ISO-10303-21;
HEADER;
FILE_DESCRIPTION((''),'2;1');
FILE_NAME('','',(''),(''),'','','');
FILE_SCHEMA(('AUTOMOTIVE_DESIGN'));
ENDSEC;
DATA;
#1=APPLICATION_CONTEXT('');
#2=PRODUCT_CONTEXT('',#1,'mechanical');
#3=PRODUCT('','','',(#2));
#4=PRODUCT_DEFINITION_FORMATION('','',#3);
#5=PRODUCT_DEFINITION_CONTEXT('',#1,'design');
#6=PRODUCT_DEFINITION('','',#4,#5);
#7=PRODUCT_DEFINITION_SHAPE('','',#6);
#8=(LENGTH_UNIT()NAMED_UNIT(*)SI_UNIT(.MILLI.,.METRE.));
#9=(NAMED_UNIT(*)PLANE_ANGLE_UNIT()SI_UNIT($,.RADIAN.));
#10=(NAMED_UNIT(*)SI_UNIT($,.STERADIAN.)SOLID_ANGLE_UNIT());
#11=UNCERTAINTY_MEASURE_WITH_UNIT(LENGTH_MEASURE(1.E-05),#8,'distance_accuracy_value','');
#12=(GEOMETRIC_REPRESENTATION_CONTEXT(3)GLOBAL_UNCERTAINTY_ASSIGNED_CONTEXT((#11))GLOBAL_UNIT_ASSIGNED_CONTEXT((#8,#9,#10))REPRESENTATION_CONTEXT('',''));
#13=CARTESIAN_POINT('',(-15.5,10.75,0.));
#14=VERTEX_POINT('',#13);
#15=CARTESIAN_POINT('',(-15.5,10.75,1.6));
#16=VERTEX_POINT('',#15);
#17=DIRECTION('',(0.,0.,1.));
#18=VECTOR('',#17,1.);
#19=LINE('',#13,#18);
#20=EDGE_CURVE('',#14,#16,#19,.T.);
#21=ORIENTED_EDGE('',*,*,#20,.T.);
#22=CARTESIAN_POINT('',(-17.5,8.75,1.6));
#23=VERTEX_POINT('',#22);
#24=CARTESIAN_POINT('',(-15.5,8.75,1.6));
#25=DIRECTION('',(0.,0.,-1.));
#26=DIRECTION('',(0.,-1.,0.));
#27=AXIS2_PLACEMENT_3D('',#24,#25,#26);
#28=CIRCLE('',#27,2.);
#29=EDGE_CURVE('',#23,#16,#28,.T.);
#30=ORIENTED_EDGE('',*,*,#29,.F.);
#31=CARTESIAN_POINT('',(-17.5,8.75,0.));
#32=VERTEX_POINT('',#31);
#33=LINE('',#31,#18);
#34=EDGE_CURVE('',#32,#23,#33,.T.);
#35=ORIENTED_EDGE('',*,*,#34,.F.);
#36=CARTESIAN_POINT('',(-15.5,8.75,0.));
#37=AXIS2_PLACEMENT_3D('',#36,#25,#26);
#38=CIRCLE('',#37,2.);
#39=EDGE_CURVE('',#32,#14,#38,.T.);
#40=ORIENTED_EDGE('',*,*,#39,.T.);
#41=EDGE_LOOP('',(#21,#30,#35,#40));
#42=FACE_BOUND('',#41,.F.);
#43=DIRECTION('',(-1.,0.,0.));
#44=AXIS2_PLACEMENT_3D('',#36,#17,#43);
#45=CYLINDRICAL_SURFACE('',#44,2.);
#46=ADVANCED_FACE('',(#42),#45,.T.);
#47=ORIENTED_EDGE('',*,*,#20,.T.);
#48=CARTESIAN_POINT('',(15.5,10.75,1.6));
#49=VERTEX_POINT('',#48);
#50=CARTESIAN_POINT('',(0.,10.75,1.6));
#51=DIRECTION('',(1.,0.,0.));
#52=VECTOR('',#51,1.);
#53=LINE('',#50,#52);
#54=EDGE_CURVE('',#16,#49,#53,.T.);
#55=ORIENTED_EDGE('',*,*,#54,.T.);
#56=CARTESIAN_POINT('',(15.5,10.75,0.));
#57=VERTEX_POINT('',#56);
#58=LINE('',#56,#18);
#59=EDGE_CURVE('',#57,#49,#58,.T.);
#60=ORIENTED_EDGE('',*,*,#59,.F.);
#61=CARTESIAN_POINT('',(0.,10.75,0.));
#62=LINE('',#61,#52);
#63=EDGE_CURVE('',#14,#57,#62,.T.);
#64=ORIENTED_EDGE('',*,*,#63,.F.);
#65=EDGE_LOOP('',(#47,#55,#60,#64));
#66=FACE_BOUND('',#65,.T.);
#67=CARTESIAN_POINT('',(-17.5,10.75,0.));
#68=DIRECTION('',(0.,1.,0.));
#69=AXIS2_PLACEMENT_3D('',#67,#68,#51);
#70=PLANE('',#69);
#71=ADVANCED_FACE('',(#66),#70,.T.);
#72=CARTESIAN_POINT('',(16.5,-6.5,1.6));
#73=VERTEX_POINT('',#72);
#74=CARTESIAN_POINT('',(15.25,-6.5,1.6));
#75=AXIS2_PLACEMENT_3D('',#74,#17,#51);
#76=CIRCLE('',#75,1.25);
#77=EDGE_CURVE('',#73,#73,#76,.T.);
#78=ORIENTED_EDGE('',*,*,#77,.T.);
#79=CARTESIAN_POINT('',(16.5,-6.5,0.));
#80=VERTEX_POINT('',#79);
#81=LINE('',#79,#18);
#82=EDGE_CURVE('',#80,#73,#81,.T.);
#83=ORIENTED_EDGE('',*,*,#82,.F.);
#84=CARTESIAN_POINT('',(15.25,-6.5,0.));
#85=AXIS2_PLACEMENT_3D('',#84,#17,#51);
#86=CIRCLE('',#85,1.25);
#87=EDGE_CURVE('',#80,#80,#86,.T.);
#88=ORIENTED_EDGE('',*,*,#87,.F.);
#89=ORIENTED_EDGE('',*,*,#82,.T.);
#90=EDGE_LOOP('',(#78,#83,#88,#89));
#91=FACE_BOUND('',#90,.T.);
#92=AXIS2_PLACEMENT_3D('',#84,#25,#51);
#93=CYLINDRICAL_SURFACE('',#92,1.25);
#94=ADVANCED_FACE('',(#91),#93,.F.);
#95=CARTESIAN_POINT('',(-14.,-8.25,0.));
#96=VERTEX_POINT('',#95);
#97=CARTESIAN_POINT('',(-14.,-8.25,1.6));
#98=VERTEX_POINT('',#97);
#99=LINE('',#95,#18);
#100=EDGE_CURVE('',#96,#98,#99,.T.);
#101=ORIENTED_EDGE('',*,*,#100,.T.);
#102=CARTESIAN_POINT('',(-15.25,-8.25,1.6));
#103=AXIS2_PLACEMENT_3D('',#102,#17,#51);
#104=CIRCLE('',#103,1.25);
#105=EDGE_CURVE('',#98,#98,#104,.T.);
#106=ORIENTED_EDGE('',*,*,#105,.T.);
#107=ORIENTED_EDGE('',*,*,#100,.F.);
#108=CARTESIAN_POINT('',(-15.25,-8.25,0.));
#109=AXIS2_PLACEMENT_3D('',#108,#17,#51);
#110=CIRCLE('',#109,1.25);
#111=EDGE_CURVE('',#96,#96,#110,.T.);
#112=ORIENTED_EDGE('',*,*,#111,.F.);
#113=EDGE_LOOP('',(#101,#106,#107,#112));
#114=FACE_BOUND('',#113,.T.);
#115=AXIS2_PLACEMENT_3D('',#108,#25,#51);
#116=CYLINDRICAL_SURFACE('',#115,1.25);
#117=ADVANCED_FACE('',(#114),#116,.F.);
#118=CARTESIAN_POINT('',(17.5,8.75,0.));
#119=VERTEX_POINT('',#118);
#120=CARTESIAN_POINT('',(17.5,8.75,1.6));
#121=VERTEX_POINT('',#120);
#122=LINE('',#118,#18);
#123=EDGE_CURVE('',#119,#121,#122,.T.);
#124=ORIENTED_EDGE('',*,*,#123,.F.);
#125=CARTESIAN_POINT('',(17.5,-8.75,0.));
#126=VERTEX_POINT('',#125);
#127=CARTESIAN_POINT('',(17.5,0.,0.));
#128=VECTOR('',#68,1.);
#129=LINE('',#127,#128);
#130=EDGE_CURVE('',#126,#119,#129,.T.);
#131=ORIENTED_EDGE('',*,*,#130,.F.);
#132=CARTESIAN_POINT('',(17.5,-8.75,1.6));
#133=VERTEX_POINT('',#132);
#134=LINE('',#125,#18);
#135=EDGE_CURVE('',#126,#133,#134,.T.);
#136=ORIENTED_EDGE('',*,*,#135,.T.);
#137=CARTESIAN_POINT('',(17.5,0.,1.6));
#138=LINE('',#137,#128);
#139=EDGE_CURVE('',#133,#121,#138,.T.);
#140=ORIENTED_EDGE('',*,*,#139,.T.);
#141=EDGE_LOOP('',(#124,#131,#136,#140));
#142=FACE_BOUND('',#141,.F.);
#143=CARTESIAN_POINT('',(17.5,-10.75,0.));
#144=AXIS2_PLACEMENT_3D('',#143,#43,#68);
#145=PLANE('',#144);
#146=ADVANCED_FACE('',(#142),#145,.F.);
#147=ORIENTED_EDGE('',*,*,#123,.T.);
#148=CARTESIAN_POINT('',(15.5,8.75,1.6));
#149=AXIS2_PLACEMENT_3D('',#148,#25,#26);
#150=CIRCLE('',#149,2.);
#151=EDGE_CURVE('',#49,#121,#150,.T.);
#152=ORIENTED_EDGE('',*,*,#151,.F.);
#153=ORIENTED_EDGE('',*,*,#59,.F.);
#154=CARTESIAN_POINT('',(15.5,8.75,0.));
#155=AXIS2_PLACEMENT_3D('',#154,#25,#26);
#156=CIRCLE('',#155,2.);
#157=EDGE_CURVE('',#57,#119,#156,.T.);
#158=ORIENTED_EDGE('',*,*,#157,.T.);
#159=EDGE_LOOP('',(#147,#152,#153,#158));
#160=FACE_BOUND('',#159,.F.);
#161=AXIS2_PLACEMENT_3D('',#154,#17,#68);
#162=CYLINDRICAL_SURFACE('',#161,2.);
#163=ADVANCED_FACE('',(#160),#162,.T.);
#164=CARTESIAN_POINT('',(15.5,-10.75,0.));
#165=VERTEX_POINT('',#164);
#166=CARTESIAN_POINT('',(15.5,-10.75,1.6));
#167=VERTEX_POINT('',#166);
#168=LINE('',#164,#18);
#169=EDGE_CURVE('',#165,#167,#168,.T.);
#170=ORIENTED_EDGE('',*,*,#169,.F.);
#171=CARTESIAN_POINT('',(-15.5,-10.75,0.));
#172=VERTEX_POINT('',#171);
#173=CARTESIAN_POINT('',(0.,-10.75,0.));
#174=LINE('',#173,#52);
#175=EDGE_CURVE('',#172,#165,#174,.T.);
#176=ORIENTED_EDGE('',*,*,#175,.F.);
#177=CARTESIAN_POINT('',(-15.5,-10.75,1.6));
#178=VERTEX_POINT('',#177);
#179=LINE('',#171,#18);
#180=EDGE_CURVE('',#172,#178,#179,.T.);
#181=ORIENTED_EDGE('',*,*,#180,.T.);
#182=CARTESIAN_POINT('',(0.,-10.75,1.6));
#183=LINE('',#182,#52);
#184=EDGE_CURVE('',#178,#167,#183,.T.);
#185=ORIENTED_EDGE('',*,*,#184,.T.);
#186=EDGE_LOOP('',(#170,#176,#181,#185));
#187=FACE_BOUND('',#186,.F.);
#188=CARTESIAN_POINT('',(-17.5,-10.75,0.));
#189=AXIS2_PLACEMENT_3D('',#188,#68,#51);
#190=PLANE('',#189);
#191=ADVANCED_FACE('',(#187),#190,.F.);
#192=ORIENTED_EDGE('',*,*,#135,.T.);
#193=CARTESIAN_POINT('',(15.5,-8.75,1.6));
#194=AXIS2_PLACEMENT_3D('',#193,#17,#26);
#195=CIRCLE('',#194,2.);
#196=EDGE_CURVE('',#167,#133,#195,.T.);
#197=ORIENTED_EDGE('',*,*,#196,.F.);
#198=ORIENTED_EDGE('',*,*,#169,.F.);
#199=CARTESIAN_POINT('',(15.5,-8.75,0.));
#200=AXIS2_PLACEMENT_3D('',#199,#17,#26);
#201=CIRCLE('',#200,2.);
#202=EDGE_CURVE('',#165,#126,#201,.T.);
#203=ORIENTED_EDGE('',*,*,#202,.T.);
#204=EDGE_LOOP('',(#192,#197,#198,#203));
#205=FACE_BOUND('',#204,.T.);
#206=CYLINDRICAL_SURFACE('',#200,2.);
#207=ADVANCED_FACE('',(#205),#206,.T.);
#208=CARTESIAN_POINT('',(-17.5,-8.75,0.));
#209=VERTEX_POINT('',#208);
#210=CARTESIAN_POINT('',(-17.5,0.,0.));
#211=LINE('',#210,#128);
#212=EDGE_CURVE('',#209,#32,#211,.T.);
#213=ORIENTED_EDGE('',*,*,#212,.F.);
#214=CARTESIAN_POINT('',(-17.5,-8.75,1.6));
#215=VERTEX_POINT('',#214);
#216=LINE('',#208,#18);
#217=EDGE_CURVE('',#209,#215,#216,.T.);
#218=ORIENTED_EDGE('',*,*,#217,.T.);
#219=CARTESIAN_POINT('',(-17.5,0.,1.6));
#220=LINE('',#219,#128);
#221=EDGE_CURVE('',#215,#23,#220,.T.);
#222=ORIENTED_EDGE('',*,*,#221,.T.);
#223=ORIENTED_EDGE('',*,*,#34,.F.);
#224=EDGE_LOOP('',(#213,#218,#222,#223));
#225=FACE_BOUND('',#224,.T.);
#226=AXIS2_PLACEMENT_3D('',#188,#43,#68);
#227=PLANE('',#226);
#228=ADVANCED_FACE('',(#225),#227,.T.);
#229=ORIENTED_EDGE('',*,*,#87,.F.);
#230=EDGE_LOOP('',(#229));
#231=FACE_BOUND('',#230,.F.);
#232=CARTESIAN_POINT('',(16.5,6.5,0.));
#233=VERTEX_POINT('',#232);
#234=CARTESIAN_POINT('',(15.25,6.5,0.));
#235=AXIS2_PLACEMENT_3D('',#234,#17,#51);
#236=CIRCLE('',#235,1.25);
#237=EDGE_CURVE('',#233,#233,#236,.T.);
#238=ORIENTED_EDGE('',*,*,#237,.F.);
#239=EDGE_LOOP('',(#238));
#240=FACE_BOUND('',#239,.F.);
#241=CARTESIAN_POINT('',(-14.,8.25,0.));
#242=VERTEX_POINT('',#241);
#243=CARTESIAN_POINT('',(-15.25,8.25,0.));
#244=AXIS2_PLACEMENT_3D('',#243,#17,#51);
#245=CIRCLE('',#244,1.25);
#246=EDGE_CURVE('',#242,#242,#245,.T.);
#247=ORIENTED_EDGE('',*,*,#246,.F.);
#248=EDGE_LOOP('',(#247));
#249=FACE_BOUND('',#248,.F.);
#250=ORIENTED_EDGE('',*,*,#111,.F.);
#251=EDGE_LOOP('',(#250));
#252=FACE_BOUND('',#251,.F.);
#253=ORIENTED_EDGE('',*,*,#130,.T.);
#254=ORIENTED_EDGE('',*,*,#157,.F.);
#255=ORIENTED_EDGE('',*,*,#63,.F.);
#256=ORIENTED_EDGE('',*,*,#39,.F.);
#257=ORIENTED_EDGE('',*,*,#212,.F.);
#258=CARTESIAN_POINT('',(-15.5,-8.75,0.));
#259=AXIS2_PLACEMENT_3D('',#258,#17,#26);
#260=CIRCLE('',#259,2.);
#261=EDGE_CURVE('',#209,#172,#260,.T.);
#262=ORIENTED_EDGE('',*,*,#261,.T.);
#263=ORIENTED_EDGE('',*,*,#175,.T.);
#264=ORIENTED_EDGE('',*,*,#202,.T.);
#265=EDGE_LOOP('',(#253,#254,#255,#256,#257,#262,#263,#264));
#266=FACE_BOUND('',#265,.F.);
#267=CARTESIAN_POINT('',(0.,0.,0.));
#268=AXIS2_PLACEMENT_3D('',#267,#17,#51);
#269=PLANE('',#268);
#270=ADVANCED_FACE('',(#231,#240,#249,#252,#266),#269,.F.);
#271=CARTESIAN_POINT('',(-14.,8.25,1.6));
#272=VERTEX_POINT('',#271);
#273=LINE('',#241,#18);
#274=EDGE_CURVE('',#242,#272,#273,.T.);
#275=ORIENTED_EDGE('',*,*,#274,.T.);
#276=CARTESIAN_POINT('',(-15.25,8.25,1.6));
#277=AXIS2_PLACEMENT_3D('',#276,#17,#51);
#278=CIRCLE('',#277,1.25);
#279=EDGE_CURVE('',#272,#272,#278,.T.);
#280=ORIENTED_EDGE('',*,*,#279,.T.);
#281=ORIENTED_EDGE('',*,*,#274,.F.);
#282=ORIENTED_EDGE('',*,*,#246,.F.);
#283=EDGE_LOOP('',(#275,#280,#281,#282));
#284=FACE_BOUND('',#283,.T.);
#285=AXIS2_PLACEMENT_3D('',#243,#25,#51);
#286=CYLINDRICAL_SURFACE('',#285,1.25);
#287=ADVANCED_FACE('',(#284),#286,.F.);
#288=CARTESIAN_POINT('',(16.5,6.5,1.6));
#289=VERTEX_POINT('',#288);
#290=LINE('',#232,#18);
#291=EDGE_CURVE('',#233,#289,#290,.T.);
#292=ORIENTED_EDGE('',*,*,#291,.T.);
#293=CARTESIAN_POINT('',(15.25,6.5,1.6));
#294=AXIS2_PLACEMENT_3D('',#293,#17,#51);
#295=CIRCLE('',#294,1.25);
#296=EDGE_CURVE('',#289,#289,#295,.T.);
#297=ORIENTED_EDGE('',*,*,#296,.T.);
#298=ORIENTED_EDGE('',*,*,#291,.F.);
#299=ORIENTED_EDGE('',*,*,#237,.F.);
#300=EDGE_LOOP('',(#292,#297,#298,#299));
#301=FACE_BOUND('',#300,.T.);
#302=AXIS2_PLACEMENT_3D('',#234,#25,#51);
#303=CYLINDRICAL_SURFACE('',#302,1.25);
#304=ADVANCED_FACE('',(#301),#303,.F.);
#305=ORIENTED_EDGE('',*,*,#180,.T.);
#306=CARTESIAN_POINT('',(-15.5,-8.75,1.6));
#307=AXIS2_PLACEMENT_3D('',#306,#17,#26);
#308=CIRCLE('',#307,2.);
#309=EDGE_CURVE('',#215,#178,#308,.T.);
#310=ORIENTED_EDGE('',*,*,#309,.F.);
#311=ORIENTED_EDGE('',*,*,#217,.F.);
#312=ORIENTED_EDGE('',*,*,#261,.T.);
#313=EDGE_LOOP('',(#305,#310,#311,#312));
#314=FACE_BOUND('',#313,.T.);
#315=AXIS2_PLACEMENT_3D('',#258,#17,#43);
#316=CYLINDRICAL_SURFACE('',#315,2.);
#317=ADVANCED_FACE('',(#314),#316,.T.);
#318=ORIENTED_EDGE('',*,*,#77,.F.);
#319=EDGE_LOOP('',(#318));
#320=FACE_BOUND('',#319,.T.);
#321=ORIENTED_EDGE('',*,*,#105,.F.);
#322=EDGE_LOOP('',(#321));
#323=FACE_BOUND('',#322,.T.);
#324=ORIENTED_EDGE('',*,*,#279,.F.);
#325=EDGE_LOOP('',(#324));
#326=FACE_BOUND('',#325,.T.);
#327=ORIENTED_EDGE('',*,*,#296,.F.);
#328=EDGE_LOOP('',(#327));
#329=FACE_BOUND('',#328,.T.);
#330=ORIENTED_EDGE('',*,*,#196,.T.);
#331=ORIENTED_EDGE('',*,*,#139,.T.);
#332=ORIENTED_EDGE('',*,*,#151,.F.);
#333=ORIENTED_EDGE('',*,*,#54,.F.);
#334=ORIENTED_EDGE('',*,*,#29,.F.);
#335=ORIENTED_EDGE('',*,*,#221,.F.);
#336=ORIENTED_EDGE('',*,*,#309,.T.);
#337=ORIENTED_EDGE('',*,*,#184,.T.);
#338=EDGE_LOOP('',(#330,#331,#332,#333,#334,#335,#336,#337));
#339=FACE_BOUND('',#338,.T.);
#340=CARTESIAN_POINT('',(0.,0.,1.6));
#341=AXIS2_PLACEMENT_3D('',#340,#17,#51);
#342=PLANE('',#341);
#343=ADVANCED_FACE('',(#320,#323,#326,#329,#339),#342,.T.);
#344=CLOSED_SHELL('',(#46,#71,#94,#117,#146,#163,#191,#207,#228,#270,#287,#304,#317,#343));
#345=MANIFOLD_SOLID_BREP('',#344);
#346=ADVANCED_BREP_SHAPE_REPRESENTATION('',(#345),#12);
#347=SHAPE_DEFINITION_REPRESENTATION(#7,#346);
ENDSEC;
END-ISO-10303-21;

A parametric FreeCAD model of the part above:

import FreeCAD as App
import Part
import Sketcher

V = App.Vector


def edges_at(feature, points):
    """Names of the edges that pass closest to the given points."""
    edges = feature.Shape.Edges
    near = lambda p: min(range(len(edges)), key=lambda i: edges[i].distToShape(Part.Vertex(*p))[0])
    return sorted({f"Edge{near(p) + 1}" for p in points})

doc = App.newDocument("Part")
body = doc.addObject("PartDesign::Body", "Body")

# Sketch on XY plane
sketch1 = body.newObject("Sketcher::SketchObject", "Sketch")
sketch1.AttachmentSupport = (doc.getObject("XY_Plane"), [""])
sketch1.MapMode = "FlatFace"
sketch1.addGeometry([
    Part.LineSegment(V(-17.5, 10.8, 0), V(-17.5, -10.8, 0)),  # 0
    Part.LineSegment(V(-17.5, -10.8, 0), V(17.5, -10.8, 0)),  # 1
    Part.LineSegment(V(17.5, -10.8, 0), V(17.5, 10.8, 0)),  # 2
    Part.LineSegment(V(17.5, 10.8, 0), V(-17.5, 10.8, 0)),  # 3
    Part.Circle(V(-15.2, -8.2, 0), V(0, 0, 1), 1.2),  # 4
    Part.Circle(V(15.2, -6.5, 0), V(0, 0, 1), 1.2),  # 5
    Part.Circle(V(-15.2, 8.2, 0), V(0, 0, 1), 1.2),  # 6
    Part.Circle(V(15.2, 6.5, 0), V(0, 0, 1), 1.2),  # 7
], False)
sketch1.addConstraint([
    Sketcher.Constraint("Coincident", 0, 2, 1, 1),
    Sketcher.Constraint("Coincident", 1, 2, 2, 1),
    Sketcher.Constraint("Coincident", 2, 2, 3, 1),
    Sketcher.Constraint("Coincident", 3, 2, 0, 1),
    Sketcher.Constraint("Vertical", 0),
    Sketcher.Constraint("Horizontal", 1),
    Sketcher.Constraint("Vertical", 2),
    Sketcher.Constraint("Horizontal", 3),
    Sketcher.Constraint("Equal", 4, 5),
    Sketcher.Constraint("Equal", 5, 6),
    Sketcher.Constraint("Equal", 6, 7),
    Sketcher.Constraint("Symmetric", 0, 2, 2, 2, -1, 1),
    Sketcher.Constraint("Symmetric", 4, 3, 6, 3, -1),
    Sketcher.Constraint("Symmetric", 5, 3, 7, 3, -1),
    Sketcher.Constraint("Diameter", 4, 2.5),
    Sketcher.Constraint("DistanceX", 1, 1, 1, 2, 35.0),
    Sketcher.Constraint("DistanceY", 0, 2, 0, 1, 21.5),
    Sketcher.Constraint("DistanceY", 5, 3, 7, 3, 13.0),
    Sketcher.Constraint("DistanceY", 0, 2, 6, 3, 19.0),
    Sketcher.Constraint("DistanceX", 4, 3, 5, 3, 30.5),
    Sketcher.Constraint("DistanceX", 4, 3, -1, 1, 15.25),
])
pad1 = body.newObject("PartDesign::Pad", "Pad")
pad1.Profile = sketch1
pad1.Length = 1.6
doc.recompute()

fillet = body.newObject("PartDesign::Fillet", "Fillet")
fillet.Base = (pad1, edges_at(pad1, [
    (-17.5, -10.75, 0.8),
    (17.5, -10.75, 0.8),
    (17.5, 10.75, 0.8),
    (-17.5, 10.75, 0.8),
]))
fillet.Radius = 2

doc.recompute()
